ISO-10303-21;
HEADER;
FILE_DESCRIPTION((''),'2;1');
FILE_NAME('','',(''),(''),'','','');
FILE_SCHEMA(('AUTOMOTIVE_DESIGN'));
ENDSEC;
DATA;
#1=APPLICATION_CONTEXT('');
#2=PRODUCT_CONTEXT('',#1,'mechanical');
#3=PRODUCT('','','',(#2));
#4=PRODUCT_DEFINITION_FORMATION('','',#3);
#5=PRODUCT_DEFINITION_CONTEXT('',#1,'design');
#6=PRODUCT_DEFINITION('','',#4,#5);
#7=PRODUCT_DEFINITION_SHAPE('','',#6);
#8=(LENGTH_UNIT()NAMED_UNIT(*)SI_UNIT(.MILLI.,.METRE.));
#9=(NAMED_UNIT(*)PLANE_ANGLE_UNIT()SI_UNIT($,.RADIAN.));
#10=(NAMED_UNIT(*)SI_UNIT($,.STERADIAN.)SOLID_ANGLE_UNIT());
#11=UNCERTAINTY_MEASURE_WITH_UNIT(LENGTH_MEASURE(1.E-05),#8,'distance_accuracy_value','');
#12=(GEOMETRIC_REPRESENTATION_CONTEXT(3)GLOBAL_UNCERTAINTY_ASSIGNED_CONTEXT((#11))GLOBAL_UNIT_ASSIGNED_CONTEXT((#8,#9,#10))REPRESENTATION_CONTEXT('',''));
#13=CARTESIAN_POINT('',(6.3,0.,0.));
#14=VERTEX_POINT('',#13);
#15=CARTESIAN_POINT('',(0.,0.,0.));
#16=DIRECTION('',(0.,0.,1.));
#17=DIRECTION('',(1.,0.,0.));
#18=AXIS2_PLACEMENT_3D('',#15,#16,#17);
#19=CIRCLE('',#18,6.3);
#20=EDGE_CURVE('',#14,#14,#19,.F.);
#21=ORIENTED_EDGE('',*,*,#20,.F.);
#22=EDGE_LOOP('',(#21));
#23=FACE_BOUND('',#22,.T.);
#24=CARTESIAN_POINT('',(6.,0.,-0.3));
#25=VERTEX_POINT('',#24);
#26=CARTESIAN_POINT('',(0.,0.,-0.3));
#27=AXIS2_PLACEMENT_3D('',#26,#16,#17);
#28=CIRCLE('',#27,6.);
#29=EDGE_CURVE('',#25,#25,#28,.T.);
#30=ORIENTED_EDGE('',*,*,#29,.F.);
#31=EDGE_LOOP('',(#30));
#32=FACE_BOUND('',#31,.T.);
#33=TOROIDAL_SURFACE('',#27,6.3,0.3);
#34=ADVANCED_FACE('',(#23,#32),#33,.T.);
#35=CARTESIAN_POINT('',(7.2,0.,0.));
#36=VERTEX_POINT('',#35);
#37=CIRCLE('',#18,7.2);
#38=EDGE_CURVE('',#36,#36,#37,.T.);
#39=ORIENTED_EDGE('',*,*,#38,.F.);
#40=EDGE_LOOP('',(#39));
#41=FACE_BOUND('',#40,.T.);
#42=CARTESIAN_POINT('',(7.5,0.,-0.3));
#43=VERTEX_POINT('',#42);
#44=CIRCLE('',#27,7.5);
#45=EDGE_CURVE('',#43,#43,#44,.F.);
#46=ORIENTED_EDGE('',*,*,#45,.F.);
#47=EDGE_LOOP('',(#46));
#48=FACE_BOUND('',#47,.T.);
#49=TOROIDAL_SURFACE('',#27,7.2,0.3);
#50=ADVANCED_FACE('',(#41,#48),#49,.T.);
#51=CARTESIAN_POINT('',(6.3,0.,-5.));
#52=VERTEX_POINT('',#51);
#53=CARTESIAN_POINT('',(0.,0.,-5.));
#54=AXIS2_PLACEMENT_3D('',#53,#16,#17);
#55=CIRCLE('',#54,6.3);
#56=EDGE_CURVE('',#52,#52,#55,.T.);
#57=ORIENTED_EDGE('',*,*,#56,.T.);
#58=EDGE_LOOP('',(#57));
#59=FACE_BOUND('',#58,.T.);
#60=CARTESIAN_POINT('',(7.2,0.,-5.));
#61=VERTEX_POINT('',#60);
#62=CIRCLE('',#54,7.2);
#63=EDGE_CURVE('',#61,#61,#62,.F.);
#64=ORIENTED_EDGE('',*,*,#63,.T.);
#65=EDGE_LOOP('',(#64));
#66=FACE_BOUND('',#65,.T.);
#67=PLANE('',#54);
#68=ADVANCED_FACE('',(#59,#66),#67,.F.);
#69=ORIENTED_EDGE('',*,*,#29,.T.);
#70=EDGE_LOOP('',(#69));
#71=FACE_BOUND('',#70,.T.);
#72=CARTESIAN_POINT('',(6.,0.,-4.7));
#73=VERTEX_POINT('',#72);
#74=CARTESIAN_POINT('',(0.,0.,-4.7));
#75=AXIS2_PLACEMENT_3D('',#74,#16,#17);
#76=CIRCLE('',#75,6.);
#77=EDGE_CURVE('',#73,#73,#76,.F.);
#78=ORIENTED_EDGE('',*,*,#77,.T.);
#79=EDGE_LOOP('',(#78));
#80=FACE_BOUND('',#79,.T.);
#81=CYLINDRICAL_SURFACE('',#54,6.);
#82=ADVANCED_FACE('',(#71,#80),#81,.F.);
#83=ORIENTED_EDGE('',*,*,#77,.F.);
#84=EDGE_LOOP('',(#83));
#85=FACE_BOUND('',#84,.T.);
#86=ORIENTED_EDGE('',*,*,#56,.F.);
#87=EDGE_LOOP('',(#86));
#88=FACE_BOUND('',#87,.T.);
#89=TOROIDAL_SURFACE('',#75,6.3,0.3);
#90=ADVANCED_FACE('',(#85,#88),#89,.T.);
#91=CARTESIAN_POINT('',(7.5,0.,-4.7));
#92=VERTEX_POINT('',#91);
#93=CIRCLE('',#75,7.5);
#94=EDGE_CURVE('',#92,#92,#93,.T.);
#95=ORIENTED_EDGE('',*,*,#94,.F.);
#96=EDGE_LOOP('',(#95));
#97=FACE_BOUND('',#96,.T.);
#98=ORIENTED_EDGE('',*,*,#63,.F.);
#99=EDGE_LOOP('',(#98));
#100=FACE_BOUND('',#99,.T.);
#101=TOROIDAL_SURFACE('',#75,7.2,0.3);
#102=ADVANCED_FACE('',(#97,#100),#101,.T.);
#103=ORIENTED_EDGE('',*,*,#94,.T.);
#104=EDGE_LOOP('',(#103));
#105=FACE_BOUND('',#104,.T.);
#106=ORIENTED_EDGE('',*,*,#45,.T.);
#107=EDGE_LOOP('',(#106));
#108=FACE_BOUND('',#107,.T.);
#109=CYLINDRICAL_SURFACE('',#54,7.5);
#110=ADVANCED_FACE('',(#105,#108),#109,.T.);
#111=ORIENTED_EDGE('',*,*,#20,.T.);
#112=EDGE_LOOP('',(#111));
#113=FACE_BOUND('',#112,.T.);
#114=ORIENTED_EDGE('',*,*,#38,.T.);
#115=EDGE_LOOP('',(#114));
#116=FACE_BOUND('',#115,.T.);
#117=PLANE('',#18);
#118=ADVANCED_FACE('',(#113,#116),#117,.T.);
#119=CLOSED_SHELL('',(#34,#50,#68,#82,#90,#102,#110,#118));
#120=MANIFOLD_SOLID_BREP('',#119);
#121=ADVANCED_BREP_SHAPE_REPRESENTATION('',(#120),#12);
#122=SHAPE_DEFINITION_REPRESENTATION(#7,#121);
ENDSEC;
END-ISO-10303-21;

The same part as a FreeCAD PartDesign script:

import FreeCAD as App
import Part
import Sketcher

V = App.Vector


def edges_at(feature, points):
    """Names of the edges that pass closest to the given points."""
    edges = feature.Shape.Edges
    near = lambda p: min(range(len(edges)), key=lambda i: edges[i].distToShape(Part.Vertex(*p))[0])
    return sorted({f"Edge{near(p) + 1}" for p in points})

doc = App.newDocument("Part")
body = doc.addObject("PartDesign::Body", "Body")

# Sketch on XY plane
sketch1 = body.newObject("Sketcher::SketchObject", "Sketch")
sketch1.AttachmentSupport = (doc.getObject("XY_Plane"), [""])
sketch1.MapMode = "FlatFace"
sketch1.addGeometry([
    Part.Circle(V(0, 0, 0), V(0, 0, 1), 7.5),
    Part.Circle(V(0, 0, 0), V(0, 0, 1), 6),
], False)
sketch1.addConstraint([
    Sketcher.Constraint("Coincident", 0, 3, -1, 1),
    Sketcher.Constraint("Coincident", 1, 3, -1, 1),
    Sketcher.Constraint("Diameter", 0, 15.0),
    Sketcher.Constraint("Diameter", 1, 12.0),
])
pad1 = body.newObject("PartDesign::Pad", "Pad")
pad1.Profile = sketch1
pad1.Length = 5
pad1.Reversed = True
doc.recompute()

fillet = body.newObject("PartDesign::Fillet", "Fillet")
fillet.Base = (pad1, edges_at(pad1, [
    (-7.5, 0, 0),
    (-7.5, 0, -5),
    (-6, 0, -5),
    (-6, 0, 0),
]))
fillet.Radius = 0.3

doc.recompute()
